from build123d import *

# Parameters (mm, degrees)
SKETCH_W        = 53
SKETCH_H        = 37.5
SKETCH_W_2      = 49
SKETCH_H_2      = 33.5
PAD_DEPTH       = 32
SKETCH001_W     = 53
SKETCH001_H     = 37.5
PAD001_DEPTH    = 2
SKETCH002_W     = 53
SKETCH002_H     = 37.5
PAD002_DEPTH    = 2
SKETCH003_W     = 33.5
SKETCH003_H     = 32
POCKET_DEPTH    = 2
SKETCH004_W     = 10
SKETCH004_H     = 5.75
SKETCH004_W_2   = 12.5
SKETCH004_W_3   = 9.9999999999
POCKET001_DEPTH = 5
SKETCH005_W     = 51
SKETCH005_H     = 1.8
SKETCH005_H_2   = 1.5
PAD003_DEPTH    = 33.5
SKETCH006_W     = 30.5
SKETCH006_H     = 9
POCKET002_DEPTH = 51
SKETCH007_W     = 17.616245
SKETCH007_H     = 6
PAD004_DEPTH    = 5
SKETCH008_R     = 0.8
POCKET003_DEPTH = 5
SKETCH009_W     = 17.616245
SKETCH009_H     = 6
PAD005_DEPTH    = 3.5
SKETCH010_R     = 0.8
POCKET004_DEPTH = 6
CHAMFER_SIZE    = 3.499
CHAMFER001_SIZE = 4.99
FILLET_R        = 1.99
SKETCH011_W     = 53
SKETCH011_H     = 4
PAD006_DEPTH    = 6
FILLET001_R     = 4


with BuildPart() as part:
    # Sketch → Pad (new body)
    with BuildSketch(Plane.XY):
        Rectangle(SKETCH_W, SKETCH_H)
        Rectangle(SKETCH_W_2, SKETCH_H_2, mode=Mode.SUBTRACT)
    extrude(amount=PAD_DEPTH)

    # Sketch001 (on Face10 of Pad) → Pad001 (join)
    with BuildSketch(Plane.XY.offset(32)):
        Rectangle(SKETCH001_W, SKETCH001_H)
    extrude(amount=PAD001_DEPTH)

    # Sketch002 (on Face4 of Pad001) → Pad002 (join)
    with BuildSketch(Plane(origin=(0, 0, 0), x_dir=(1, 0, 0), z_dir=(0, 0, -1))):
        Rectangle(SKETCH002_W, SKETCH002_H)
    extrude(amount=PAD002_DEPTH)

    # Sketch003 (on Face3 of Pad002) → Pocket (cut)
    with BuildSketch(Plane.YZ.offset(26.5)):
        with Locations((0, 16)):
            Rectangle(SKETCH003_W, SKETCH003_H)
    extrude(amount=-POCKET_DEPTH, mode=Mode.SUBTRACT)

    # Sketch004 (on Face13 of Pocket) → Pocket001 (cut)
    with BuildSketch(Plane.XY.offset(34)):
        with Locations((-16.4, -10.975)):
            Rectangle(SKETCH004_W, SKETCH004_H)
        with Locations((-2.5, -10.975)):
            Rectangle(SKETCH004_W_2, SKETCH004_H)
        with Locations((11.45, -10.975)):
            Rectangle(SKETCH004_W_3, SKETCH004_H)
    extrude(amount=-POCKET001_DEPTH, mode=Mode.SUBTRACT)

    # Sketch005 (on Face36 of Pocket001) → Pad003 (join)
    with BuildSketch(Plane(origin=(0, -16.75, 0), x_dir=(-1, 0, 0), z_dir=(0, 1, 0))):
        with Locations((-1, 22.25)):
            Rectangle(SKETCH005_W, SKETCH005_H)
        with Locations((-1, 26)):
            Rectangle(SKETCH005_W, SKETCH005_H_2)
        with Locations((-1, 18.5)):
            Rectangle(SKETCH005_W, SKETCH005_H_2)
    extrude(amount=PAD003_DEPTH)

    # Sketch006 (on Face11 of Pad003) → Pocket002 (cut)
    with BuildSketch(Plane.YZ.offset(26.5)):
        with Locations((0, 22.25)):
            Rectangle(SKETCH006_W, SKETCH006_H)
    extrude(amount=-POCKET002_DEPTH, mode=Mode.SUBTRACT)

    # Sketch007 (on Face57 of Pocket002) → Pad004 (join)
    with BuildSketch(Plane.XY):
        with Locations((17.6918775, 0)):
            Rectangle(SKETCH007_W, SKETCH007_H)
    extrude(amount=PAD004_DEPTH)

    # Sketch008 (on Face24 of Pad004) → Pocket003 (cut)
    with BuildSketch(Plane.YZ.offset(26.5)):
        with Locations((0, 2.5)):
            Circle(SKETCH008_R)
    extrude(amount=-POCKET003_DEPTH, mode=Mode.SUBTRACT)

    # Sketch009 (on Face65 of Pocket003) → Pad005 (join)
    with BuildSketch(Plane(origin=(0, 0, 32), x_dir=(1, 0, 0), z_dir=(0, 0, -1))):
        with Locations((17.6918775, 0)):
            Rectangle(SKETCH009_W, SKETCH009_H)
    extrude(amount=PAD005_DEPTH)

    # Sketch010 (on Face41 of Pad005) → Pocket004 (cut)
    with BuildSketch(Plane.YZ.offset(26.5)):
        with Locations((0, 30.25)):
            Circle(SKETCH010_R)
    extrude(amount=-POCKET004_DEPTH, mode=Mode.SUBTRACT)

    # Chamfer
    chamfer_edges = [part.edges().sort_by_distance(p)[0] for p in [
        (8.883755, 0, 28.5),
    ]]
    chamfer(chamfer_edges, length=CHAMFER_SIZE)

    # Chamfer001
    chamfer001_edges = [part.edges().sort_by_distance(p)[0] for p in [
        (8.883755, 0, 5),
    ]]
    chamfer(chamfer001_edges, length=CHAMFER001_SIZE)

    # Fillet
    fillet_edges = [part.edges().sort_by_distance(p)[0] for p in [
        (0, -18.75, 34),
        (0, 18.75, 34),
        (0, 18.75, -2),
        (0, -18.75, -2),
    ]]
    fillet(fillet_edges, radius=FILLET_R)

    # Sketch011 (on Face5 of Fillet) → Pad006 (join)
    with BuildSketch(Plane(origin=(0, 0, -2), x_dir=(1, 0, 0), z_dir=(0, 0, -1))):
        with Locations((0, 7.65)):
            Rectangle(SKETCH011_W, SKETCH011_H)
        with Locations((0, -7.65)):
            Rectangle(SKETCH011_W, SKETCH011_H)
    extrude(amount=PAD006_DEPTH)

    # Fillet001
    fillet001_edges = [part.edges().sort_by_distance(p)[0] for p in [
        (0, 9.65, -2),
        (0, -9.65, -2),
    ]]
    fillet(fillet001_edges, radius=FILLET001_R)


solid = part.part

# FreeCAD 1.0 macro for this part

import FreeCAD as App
import Part
import Sketcher
Q = App.Units.Quantity


def edges_at(feature, points):
    """Names of the edges that pass closest to the given points."""
    edges = feature.Shape.Edges
    near = lambda p: min(range(len(edges)), key=lambda i: edges[i].distToShape(Part.Vertex(*p))[0])
    return sorted({f"Edge{near(p) + 1}" for p in points})


def add_polygon(sketch, points):
    """Adds a closed chain of lines whose ends are joined by coincident constraints."""
    first, n = sketch.GeometryCount, len(points)
    for a, b in zip(points, points[1:] + points[:1]):
        sketch.addGeometry(Part.LineSegment(App.Vector(*a, 0), App.Vector(*b, 0)), False)
    for i in range(n):
        sketch.addConstraint(Sketcher.Constraint("Coincident", first + i, 2, first + (i + 1) % n, 1))

doc = App.newDocument("Part")
body = doc.addObject("PartDesign::Body", "Body")

sketch1 = body.newObject("Sketcher::SketchObject", "Sketch")
sketch1.AttachmentSupport = (doc.getObject("XY_Plane"), [""])
sketch1.MapMode = "FlatFace"
add_polygon(sketch1, [(-26.5, 18.75), (-26.5, -18.75), (26.5, -18.75), (26.5, 18.75)])
add_polygon(sketch1, [(24.5, -16.75), (-24.5, -16.75), (-24.5, 16.75), (24.5, 16.75)])
sketch1.addConstraint([
    Sketcher.Constraint("Vertical", 0),
    Sketcher.Constraint("Horizontal", 1),
    Sketcher.Constraint("Vertical", 2),
    Sketcher.Constraint("Horizontal", 3),
    Sketcher.Constraint("Horizontal", 4),
    Sketcher.Constraint("Vertical", 5),
    Sketcher.Constraint("Horizontal", 6),
    Sketcher.Constraint("Vertical", 7),
    Sketcher.Constraint("Symmetric", 0, 2, 2, 2, -1, 1),
    Sketcher.Constraint("Symmetric", 4, 2, 6, 2, -1, 1),
    Sketcher.Constraint("DistanceX", 1, 1, 1, 2, Q("53 mm")),
    Sketcher.Constraint("DistanceX", 4, 2, 4, 1, Q("49 mm")),
    Sketcher.Constraint("DistanceY", 0, 2, 0, 1, Q("37.5 mm")),
    Sketcher.Constraint("DistanceY", 5, 1, 5, 2, Q("33.5 mm")),
])
pad1 = body.newObject("PartDesign::Pad", "Pad")
pad1.Profile = sketch1
pad1.Length = 32

sketch2 = body.newObject("Sketcher::SketchObject", "Sketch001")
sketch2.AttachmentSupport = (doc.getObject("XY_Plane"), [""])
sketch2.MapMode = "FlatFace"
sketch2.AttachmentOffset = App.Placement(App.Vector(0, 0, 32), App.Rotation())
add_polygon(sketch2, [(-26.5, 18.75), (-26.5, -18.75), (26.5, -18.75), (26.5, 18.75)])
sketch2.addConstraint([
    Sketcher.Constraint("Vertical", 0),
    Sketcher.Constraint("Horizontal", 1),
    Sketcher.Constraint("Vertical", 2),
    Sketcher.Constraint("Horizontal", 3),
    Sketcher.Constraint("Symmetric", 0, 2, 2, 2, -1, 1),
    Sketcher.Constraint("DistanceX", 1, 1, 1, 2, Q("53 mm")),
    Sketcher.Constraint("DistanceY", 0, 2, 0, 1, Q("37.5 mm")),
])
pad2 = body.newObject("PartDesign::Pad", "Pad001")
pad2.Profile = sketch2
pad2.Length = 2

sketch3 = body.newObject("Sketcher::SketchObject", "Sketch002")
sketch3.AttachmentSupport = (doc.getObject("XY_Plane"), [""])
sketch3.MapMode = "FlatFace"
add_polygon(sketch3, [(-26.5, -18.75), (-26.5, 18.75), (26.5, 18.75), (26.5, -18.75)])
sketch3.addConstraint([
    Sketcher.Constraint("Vertical", 0),
    Sketcher.Constraint("Horizontal", 1),
    Sketcher.Constraint("Vertical", 2),
    Sketcher.Constraint("Horizontal", 3),
    Sketcher.Constraint("Symmetric", 0, 2, 2, 2, -1, 1),
    Sketcher.Constraint("DistanceX", 1, 1, 1, 2, Q("53 mm")),
    Sketcher.Constraint("DistanceY", 0, 1, 0, 2, Q("37.5 mm")),
])
pad3 = body.newObject("PartDesign::Pad", "Pad002")
pad3.Profile = sketch3
pad3.Length = 2
pad3.Reversed = True

sketch4 = body.newObject("Sketcher::SketchObject", "Sketch003")
sketch4.AttachmentSupport = (doc.getObject("YZ_Plane"), [""])
sketch4.MapMode = "FlatFace"
sketch4.AttachmentOffset = App.Placement(App.Vector(0, 0, 26.5), App.Rotation())
add_polygon(sketch4, [(-16.75, 32), (-16.75, 0), (16.75, 0), (16.75, 32)])
sketch4.addConstraint([
    Sketcher.Constraint("Vertical", 0),
    Sketcher.Constraint("Horizontal", 1),
    Sketcher.Constraint("Vertical", 2),
    Sketcher.Constraint("Horizontal", 3),
    Sketcher.Constraint("Symmetric", 0, 2, 1, 2, -1, 1),
    Sketcher.Constraint("DistanceY", 0, 2, 0, 1, Q("32 mm")),
    Sketcher.Constraint("DistanceX", 1, 1, 1, 2, Q("33.5 mm")),
])
pocket1 = body.newObject("PartDesign::Pocket", "Pocket")
pocket1.Profile = sketch4
pocket1.Length = 2

sketch5 = body.newObject("Sketcher::SketchObject", "Sketch004")
sketch5.AttachmentSupport = (doc.getObject("XY_Plane"), [""])
sketch5.MapMode = "FlatFace"
sketch5.AttachmentOffset = App.Placement(App.Vector(0, 0, 34), App.Rotation())
add_polygon(sketch5, [(-21.4, -8.1), (-21.4, -13.85), (-11.4, -13.85), (-11.4, -8.1)])
add_polygon(sketch5, [(-8.75, -8.1), (-8.75, -13.85), (3.75, -13.85), (3.75, -8.1)])
add_polygon(sketch5, [(6.45, -8.1), (6.45, -13.85), (16.45, -13.85), (16.45, -8.1)])
sketch5.addConstraint([
    Sketcher.Constraint("Vertical", 0),
    Sketcher.Constraint("Horizontal", 1),
    Sketcher.Constraint("Vertical", 2),
    Sketcher.Constraint("Horizontal", 3),
    Sketcher.Constraint("Vertical", 4),
    Sketcher.Constraint("Horizontal", 5),
    Sketcher.Constraint("Vertical", 6),
    Sketcher.Constraint("Horizontal", 7),
    Sketcher.Constraint("Vertical", 8),
    Sketcher.Constraint("Horizontal", 9),
    Sketcher.Constraint("Vertical", 10),
    Sketcher.Constraint("Horizontal", 11),
    Sketcher.Constraint("Horizontal", 1, 2, 4, 2),
    Sketcher.Constraint("Horizontal", 3, 2, 6, 2),
    Sketcher.Constraint("Horizontal", 5, 2, 8, 2),
    Sketcher.Constraint("Horizontal", 7, 2, 10, 2),
    Sketcher.Constraint("Equal", 3, 9),
    Sketcher.Constraint("DistanceX", 1, 1, 1, 2, Q("10 mm")),
    Sketcher.Constraint("DistanceX", 5, 1, 5, 2, Q("12.5 mm")),
    Sketcher.Constraint("DistanceY", 0, 2, 0, 1, Q("5.75 mm")),
    Sketcher.Constraint("DistanceX", 0, 2, -1, 1, Q("21.4 mm")),
    Sketcher.Constraint("DistanceY", 2, 2, -1, 1, Q("8.1 mm")),
    Sketcher.Constraint("DistanceX", 5, 2, 8, 2, Q("2.7 mm")),
    Sketcher.Constraint("DistanceX", 4, 2, -1, 1, Q("8.75 mm")),
])
pocket2 = body.newObject("PartDesign::Pocket", "Pocket001")
pocket2.Profile = sketch5
pocket2.Length = 5

sketch6 = body.newObject("Sketcher::SketchObject", "Sketch005")
sketch6.AttachmentSupport = (doc.getObject("XZ_Plane"), [""])
sketch6.MapMode = "FlatFace"
sketch6.AttachmentOffset = App.Placement(App.Vector(0, 0, 16.75), App.Rotation())
add_polygon(sketch6, [(26.5, 23.15), (26.5, 21.35), (-24.5, 21.35), (-24.5, 23.15)])
add_polygon(sketch6, [(26.5, 26.75), (26.5, 25.25), (-24.5, 25.25), (-24.5, 26.75)])
add_polygon(sketch6, [(26.5, 19.25), (26.5, 17.75), (-24.5, 17.75), (-24.5, 19.25)])
sketch6.addConstraint([
    Sketcher.Constraint("Vertical", 0),
    Sketcher.Constraint("Horizontal", 1),
    Sketcher.Constraint("Vertical", 2),
    Sketcher.Constraint("Horizontal", 3),
    Sketcher.Constraint("Vertical", 4),
    Sketcher.Constraint("Horizontal", 5),
    Sketcher.Constraint("Vertical", 6),
    Sketcher.Constraint("Horizontal", 7),
    Sketcher.Constraint("Vertical", 8),
    Sketcher.Constraint("Horizontal", 9),
    Sketcher.Constraint("Vertical", 10),
    Sketcher.Constraint("Horizontal", 11),
    Sketcher.Constraint("Vertical", 3, 2, 4, 2),
    Sketcher.Constraint("Vertical", 2, 2, 5, 2),
    Sketcher.Constraint("Vertical", 7, 2, 8, 2),
    Sketcher.Constraint("Vertical", 6, 2, 9, 2),
    Sketcher.Constraint("Equal", 6, 8),
    Sketcher.Constraint("DistanceX", 1, 2, 1, 1, Q("51 mm")),
    Sketcher.Constraint("DistanceY", 0, 2, 0, 1, Q("1.8 mm")),
    Sketcher.Constraint("DistanceY", 4, 2, 4, 1, Q("1.5 mm")),
    Sketcher.Constraint("DistanceY", 8, 2, 7, 2, Q("9 mm")),
    Sketcher.Constraint("DistanceX", -1, 1, 0, 2, Q("26.5 mm")),
    Sketcher.Constraint("DistanceY", 3, 2, 4, 2, Q("2.1 mm")),
    Sketcher.Constraint("DistanceY", -1, 1, 0, 2, Q("21.35 mm")),
])
pad4 = body.newObject("PartDesign::Pad", "Pad003")
pad4.Profile = sketch6
pad4.Length = 33.5
pad4.Reversed = True

sketch7 = body.newObject("Sketcher::SketchObject", "Sketch006")
sketch7.AttachmentSupport = (doc.getObject("YZ_Plane"), [""])
sketch7.MapMode = "FlatFace"
sketch7.AttachmentOffset = App.Placement(App.Vector(0, 0, 26.5), App.Rotation())
add_polygon(sketch7, [(-15.25, 26.75), (-15.25, 17.75), (15.25, 17.75), (15.25, 26.75)])
sketch7.addConstraint([
    Sketcher.Constraint("Vertical", 0),
    Sketcher.Constraint("Horizontal", 1),
    Sketcher.Constraint("Vertical", 2),
    Sketcher.Constraint("Horizontal", 3),
    Sketcher.Constraint("DistanceY", 0, 2, 0, 1, Q("9 mm")),
    Sketcher.Constraint("DistanceX", 1, 1, 1, 2, Q("30.5 mm")),
    Sketcher.Constraint("DistanceX", 0, 2, -1, 1, Q("15.25 mm")),
    Sketcher.Constraint("DistanceY", -1, 1, 0, 2, Q("17.75 mm")),
])
pocket3 = body.newObject("PartDesign::Pocket", "Pocket002")
pocket3.Profile = sketch7
pocket3.Length = 51

sketch8 = body.newObject("Sketcher::SketchObject", "Sketch007")
sketch8.AttachmentSupport = (doc.getObject("XY_Plane"), [""])
sketch8.MapMode = "FlatFace"
add_polygon(sketch8, [(8.883755, 3), (8.883755, -3), (26.5, -3), (26.5, 3)])
sketch8.addConstraint([
    Sketcher.Constraint("Vertical", 0),
    Sketcher.Constraint("Horizontal", 1),
    Sketcher.Constraint("Vertical", 2),
    Sketcher.Constraint("Horizontal", 3),
    Sketcher.Constraint("DistanceY", 0, 2, 0, 1, Q("6 mm")),
    Sketcher.Constraint("DistanceY", 0, 2, -1, 1, Q("3 mm")),
    Sketcher.Constraint("DistanceX", -1, 1, 1, 2, Q("26.5 mm")),
    Sketcher.Constraint("DistanceX", 1, 1, 1, 2, Q("17.616245 mm")),
])
pad5 = body.newObject("PartDesign::Pad", "Pad004")
pad5.Profile = sketch8
pad5.Length = 5

sketch9 = body.newObject("Sketcher::SketchObject", "Sketch008")
sketch9.AttachmentSupport = (doc.getObject("YZ_Plane"), [""])
sketch9.MapMode = "FlatFace"
sketch9.AttachmentOffset = App.Placement(App.Vector(0, 0, 26.5), App.Rotation())
sketch9.addGeometry(Part.Circle(App.Vector(0, 2.5, 0), App.Vector(0, 0, 1), 0.8), False)
sketch9.addConstraint([
    Sketcher.Constraint("PointOnObject", 0, 3, -2),
    Sketcher.Constraint("Diameter", 0, Q("1.6 mm")),
    Sketcher.Constraint("DistanceY", -1, 1, 0, 3, Q("2.5 mm")),
])
pocket4 = body.newObject("PartDesign::Pocket", "Pocket003")
pocket4.Profile = sketch9
pocket4.Length = 5

sketch10 = body.newObject("Sketcher::SketchObject", "Sketch009")
sketch10.AttachmentSupport = (doc.getObject("XY_Plane"), [""])
sketch10.MapMode = "FlatFace"
sketch10.AttachmentOffset = App.Placement(App.Vector(0, 0, 32), App.Rotation())
add_polygon(sketch10, [(8.883755, -3), (8.883755, 3), (26.5, 3), (26.5, -3)])
sketch10.addConstraint([
    Sketcher.Constraint("Vertical", 0),
    Sketcher.Constraint("Horizontal", 1),
    Sketcher.Constraint("Vertical", 2),
    Sketcher.Constraint("Horizontal", 3),
    Sketcher.Constraint("DistanceY", 0, 1, 0, 2, Q("6 mm")),
    Sketcher.Constraint("DistanceY", -1, 1, 0, 2, Q("3 mm")),
    Sketcher.Constraint("DistanceX", -1, 1, 1, 2, Q("26.5 mm")),
    Sketcher.Constraint("DistanceX", 1, 1, 1, 2, Q("17.616245 mm")),
])
pad6 = body.newObject("PartDesign::Pad", "Pad005")
pad6.Profile = sketch10
pad6.Length = 3.5
pad6.Reversed = True

sketch11 = body.newObject("Sketcher::SketchObject", "Sketch010")
sketch11.AttachmentSupport = (doc.getObject("YZ_Plane"), [""])
sketch11.MapMode = "FlatFace"
sketch11.AttachmentOffset = App.Placement(App.Vector(0, 0, 26.5), App.Rotation())
sketch11.addGeometry(Part.Circle(App.Vector(0, 30.25, 0), App.Vector(0, 0, 1), 0.8), False)
sketch11.addConstraint([
    Sketcher.Constraint("PointOnObject", 0, 3, -2),
    Sketcher.Constraint("Diameter", 0, Q("1.6 mm")),
    Sketcher.Constraint("DistanceY", -1, 1, 0, 3, Q("30.25 mm")),
])
pocket5 = body.newObject("PartDesign::Pocket", "Pocket004")
pocket5.Profile = sketch11
pocket5.Length = 6
doc.recompute()

chamfer = body.newObject("PartDesign::Chamfer", "Chamfer")
chamfer.Base = (pocket5, edges_at(pocket5, [(8.884, 0, 28.5)]))
chamfer.Size = 3.499
doc.recompute()

chamfer2 = body.newObject("PartDesign::Chamfer", "Chamfer001")
chamfer2.Base = (chamfer, edges_at(chamfer, [(8.884, 0, 5)]))
chamfer2.Size = 4.99
doc.recompute()

fillet = body.newObject("PartDesign::Fillet", "Fillet")
fillet.Base = (chamfer2, edges_at(chamfer2, [
    (0, -18.75, 34),
    (0, 18.75, 34),
    (0, 18.75, -2),
    (0, -18.75, -2),
]))
fillet.Radius = 1.99

sketch12 = body.newObject("Sketcher::SketchObject", "Sketch011")
sketch12.AttachmentSupport = (doc.getObject("XY_Plane"), [""])
sketch12.MapMode = "FlatFace"
sketch12.AttachmentOffset = App.Placement(App.Vector(0, 0, -2), App.Rotation())
add_polygon(sketch12, [(-26.5, -9.65), (-26.5, -5.65), (26.5, -5.65), (26.5, -9.65)])
add_polygon(sketch12, [(-26.5, 5.65), (-26.5, 9.65), (26.5, 9.65), (26.5, 5.65)])
sketch12.addConstraint([
    Sketcher.Constraint("Vertical", 0),
    Sketcher.Constraint("Horizontal", 1),
    Sketcher.Constraint("Vertical", 2),
    Sketcher.Constraint("Horizontal", 3),
    Sketcher.Constraint("Vertical", 4),
    Sketcher.Constraint("Horizontal", 5),
    Sketcher.Constraint("Vertical", 6),
    Sketcher.Constraint("Horizontal", 7),
    Sketcher.Constraint("Symmetric", 2, 2, 4, 2, -1, 1),
    Sketcher.Constraint("Symmetric", 0, 2, 6, 2, -1, 1),
    Sketcher.Constraint("Vertical", 3, 2, 4, 2),
    Sketcher.Constraint("DistanceX", 1, 1, 1, 2, Q("53 mm")),
    Sketcher.Constraint("DistanceY", 0, 1, 0, 2, Q("4 mm")),
    Sketcher.Constraint("DistanceY", 0, 2, 4, 2, Q("15.3 mm")),
])
pad7 = body.newObject("PartDesign::Pad", "Pad006")
pad7.Profile = sketch12
pad7.Length = 6
pad7.Reversed = True
doc.recompute()

fillet2 = body.newObject("PartDesign::Fillet", "Fillet001")
fillet2.Base = (pad7, edges_at(pad7, [(0, 9.65, -2), (0, -9.65, -2)]))
fillet2.Radius = 4

doc.recompute()
